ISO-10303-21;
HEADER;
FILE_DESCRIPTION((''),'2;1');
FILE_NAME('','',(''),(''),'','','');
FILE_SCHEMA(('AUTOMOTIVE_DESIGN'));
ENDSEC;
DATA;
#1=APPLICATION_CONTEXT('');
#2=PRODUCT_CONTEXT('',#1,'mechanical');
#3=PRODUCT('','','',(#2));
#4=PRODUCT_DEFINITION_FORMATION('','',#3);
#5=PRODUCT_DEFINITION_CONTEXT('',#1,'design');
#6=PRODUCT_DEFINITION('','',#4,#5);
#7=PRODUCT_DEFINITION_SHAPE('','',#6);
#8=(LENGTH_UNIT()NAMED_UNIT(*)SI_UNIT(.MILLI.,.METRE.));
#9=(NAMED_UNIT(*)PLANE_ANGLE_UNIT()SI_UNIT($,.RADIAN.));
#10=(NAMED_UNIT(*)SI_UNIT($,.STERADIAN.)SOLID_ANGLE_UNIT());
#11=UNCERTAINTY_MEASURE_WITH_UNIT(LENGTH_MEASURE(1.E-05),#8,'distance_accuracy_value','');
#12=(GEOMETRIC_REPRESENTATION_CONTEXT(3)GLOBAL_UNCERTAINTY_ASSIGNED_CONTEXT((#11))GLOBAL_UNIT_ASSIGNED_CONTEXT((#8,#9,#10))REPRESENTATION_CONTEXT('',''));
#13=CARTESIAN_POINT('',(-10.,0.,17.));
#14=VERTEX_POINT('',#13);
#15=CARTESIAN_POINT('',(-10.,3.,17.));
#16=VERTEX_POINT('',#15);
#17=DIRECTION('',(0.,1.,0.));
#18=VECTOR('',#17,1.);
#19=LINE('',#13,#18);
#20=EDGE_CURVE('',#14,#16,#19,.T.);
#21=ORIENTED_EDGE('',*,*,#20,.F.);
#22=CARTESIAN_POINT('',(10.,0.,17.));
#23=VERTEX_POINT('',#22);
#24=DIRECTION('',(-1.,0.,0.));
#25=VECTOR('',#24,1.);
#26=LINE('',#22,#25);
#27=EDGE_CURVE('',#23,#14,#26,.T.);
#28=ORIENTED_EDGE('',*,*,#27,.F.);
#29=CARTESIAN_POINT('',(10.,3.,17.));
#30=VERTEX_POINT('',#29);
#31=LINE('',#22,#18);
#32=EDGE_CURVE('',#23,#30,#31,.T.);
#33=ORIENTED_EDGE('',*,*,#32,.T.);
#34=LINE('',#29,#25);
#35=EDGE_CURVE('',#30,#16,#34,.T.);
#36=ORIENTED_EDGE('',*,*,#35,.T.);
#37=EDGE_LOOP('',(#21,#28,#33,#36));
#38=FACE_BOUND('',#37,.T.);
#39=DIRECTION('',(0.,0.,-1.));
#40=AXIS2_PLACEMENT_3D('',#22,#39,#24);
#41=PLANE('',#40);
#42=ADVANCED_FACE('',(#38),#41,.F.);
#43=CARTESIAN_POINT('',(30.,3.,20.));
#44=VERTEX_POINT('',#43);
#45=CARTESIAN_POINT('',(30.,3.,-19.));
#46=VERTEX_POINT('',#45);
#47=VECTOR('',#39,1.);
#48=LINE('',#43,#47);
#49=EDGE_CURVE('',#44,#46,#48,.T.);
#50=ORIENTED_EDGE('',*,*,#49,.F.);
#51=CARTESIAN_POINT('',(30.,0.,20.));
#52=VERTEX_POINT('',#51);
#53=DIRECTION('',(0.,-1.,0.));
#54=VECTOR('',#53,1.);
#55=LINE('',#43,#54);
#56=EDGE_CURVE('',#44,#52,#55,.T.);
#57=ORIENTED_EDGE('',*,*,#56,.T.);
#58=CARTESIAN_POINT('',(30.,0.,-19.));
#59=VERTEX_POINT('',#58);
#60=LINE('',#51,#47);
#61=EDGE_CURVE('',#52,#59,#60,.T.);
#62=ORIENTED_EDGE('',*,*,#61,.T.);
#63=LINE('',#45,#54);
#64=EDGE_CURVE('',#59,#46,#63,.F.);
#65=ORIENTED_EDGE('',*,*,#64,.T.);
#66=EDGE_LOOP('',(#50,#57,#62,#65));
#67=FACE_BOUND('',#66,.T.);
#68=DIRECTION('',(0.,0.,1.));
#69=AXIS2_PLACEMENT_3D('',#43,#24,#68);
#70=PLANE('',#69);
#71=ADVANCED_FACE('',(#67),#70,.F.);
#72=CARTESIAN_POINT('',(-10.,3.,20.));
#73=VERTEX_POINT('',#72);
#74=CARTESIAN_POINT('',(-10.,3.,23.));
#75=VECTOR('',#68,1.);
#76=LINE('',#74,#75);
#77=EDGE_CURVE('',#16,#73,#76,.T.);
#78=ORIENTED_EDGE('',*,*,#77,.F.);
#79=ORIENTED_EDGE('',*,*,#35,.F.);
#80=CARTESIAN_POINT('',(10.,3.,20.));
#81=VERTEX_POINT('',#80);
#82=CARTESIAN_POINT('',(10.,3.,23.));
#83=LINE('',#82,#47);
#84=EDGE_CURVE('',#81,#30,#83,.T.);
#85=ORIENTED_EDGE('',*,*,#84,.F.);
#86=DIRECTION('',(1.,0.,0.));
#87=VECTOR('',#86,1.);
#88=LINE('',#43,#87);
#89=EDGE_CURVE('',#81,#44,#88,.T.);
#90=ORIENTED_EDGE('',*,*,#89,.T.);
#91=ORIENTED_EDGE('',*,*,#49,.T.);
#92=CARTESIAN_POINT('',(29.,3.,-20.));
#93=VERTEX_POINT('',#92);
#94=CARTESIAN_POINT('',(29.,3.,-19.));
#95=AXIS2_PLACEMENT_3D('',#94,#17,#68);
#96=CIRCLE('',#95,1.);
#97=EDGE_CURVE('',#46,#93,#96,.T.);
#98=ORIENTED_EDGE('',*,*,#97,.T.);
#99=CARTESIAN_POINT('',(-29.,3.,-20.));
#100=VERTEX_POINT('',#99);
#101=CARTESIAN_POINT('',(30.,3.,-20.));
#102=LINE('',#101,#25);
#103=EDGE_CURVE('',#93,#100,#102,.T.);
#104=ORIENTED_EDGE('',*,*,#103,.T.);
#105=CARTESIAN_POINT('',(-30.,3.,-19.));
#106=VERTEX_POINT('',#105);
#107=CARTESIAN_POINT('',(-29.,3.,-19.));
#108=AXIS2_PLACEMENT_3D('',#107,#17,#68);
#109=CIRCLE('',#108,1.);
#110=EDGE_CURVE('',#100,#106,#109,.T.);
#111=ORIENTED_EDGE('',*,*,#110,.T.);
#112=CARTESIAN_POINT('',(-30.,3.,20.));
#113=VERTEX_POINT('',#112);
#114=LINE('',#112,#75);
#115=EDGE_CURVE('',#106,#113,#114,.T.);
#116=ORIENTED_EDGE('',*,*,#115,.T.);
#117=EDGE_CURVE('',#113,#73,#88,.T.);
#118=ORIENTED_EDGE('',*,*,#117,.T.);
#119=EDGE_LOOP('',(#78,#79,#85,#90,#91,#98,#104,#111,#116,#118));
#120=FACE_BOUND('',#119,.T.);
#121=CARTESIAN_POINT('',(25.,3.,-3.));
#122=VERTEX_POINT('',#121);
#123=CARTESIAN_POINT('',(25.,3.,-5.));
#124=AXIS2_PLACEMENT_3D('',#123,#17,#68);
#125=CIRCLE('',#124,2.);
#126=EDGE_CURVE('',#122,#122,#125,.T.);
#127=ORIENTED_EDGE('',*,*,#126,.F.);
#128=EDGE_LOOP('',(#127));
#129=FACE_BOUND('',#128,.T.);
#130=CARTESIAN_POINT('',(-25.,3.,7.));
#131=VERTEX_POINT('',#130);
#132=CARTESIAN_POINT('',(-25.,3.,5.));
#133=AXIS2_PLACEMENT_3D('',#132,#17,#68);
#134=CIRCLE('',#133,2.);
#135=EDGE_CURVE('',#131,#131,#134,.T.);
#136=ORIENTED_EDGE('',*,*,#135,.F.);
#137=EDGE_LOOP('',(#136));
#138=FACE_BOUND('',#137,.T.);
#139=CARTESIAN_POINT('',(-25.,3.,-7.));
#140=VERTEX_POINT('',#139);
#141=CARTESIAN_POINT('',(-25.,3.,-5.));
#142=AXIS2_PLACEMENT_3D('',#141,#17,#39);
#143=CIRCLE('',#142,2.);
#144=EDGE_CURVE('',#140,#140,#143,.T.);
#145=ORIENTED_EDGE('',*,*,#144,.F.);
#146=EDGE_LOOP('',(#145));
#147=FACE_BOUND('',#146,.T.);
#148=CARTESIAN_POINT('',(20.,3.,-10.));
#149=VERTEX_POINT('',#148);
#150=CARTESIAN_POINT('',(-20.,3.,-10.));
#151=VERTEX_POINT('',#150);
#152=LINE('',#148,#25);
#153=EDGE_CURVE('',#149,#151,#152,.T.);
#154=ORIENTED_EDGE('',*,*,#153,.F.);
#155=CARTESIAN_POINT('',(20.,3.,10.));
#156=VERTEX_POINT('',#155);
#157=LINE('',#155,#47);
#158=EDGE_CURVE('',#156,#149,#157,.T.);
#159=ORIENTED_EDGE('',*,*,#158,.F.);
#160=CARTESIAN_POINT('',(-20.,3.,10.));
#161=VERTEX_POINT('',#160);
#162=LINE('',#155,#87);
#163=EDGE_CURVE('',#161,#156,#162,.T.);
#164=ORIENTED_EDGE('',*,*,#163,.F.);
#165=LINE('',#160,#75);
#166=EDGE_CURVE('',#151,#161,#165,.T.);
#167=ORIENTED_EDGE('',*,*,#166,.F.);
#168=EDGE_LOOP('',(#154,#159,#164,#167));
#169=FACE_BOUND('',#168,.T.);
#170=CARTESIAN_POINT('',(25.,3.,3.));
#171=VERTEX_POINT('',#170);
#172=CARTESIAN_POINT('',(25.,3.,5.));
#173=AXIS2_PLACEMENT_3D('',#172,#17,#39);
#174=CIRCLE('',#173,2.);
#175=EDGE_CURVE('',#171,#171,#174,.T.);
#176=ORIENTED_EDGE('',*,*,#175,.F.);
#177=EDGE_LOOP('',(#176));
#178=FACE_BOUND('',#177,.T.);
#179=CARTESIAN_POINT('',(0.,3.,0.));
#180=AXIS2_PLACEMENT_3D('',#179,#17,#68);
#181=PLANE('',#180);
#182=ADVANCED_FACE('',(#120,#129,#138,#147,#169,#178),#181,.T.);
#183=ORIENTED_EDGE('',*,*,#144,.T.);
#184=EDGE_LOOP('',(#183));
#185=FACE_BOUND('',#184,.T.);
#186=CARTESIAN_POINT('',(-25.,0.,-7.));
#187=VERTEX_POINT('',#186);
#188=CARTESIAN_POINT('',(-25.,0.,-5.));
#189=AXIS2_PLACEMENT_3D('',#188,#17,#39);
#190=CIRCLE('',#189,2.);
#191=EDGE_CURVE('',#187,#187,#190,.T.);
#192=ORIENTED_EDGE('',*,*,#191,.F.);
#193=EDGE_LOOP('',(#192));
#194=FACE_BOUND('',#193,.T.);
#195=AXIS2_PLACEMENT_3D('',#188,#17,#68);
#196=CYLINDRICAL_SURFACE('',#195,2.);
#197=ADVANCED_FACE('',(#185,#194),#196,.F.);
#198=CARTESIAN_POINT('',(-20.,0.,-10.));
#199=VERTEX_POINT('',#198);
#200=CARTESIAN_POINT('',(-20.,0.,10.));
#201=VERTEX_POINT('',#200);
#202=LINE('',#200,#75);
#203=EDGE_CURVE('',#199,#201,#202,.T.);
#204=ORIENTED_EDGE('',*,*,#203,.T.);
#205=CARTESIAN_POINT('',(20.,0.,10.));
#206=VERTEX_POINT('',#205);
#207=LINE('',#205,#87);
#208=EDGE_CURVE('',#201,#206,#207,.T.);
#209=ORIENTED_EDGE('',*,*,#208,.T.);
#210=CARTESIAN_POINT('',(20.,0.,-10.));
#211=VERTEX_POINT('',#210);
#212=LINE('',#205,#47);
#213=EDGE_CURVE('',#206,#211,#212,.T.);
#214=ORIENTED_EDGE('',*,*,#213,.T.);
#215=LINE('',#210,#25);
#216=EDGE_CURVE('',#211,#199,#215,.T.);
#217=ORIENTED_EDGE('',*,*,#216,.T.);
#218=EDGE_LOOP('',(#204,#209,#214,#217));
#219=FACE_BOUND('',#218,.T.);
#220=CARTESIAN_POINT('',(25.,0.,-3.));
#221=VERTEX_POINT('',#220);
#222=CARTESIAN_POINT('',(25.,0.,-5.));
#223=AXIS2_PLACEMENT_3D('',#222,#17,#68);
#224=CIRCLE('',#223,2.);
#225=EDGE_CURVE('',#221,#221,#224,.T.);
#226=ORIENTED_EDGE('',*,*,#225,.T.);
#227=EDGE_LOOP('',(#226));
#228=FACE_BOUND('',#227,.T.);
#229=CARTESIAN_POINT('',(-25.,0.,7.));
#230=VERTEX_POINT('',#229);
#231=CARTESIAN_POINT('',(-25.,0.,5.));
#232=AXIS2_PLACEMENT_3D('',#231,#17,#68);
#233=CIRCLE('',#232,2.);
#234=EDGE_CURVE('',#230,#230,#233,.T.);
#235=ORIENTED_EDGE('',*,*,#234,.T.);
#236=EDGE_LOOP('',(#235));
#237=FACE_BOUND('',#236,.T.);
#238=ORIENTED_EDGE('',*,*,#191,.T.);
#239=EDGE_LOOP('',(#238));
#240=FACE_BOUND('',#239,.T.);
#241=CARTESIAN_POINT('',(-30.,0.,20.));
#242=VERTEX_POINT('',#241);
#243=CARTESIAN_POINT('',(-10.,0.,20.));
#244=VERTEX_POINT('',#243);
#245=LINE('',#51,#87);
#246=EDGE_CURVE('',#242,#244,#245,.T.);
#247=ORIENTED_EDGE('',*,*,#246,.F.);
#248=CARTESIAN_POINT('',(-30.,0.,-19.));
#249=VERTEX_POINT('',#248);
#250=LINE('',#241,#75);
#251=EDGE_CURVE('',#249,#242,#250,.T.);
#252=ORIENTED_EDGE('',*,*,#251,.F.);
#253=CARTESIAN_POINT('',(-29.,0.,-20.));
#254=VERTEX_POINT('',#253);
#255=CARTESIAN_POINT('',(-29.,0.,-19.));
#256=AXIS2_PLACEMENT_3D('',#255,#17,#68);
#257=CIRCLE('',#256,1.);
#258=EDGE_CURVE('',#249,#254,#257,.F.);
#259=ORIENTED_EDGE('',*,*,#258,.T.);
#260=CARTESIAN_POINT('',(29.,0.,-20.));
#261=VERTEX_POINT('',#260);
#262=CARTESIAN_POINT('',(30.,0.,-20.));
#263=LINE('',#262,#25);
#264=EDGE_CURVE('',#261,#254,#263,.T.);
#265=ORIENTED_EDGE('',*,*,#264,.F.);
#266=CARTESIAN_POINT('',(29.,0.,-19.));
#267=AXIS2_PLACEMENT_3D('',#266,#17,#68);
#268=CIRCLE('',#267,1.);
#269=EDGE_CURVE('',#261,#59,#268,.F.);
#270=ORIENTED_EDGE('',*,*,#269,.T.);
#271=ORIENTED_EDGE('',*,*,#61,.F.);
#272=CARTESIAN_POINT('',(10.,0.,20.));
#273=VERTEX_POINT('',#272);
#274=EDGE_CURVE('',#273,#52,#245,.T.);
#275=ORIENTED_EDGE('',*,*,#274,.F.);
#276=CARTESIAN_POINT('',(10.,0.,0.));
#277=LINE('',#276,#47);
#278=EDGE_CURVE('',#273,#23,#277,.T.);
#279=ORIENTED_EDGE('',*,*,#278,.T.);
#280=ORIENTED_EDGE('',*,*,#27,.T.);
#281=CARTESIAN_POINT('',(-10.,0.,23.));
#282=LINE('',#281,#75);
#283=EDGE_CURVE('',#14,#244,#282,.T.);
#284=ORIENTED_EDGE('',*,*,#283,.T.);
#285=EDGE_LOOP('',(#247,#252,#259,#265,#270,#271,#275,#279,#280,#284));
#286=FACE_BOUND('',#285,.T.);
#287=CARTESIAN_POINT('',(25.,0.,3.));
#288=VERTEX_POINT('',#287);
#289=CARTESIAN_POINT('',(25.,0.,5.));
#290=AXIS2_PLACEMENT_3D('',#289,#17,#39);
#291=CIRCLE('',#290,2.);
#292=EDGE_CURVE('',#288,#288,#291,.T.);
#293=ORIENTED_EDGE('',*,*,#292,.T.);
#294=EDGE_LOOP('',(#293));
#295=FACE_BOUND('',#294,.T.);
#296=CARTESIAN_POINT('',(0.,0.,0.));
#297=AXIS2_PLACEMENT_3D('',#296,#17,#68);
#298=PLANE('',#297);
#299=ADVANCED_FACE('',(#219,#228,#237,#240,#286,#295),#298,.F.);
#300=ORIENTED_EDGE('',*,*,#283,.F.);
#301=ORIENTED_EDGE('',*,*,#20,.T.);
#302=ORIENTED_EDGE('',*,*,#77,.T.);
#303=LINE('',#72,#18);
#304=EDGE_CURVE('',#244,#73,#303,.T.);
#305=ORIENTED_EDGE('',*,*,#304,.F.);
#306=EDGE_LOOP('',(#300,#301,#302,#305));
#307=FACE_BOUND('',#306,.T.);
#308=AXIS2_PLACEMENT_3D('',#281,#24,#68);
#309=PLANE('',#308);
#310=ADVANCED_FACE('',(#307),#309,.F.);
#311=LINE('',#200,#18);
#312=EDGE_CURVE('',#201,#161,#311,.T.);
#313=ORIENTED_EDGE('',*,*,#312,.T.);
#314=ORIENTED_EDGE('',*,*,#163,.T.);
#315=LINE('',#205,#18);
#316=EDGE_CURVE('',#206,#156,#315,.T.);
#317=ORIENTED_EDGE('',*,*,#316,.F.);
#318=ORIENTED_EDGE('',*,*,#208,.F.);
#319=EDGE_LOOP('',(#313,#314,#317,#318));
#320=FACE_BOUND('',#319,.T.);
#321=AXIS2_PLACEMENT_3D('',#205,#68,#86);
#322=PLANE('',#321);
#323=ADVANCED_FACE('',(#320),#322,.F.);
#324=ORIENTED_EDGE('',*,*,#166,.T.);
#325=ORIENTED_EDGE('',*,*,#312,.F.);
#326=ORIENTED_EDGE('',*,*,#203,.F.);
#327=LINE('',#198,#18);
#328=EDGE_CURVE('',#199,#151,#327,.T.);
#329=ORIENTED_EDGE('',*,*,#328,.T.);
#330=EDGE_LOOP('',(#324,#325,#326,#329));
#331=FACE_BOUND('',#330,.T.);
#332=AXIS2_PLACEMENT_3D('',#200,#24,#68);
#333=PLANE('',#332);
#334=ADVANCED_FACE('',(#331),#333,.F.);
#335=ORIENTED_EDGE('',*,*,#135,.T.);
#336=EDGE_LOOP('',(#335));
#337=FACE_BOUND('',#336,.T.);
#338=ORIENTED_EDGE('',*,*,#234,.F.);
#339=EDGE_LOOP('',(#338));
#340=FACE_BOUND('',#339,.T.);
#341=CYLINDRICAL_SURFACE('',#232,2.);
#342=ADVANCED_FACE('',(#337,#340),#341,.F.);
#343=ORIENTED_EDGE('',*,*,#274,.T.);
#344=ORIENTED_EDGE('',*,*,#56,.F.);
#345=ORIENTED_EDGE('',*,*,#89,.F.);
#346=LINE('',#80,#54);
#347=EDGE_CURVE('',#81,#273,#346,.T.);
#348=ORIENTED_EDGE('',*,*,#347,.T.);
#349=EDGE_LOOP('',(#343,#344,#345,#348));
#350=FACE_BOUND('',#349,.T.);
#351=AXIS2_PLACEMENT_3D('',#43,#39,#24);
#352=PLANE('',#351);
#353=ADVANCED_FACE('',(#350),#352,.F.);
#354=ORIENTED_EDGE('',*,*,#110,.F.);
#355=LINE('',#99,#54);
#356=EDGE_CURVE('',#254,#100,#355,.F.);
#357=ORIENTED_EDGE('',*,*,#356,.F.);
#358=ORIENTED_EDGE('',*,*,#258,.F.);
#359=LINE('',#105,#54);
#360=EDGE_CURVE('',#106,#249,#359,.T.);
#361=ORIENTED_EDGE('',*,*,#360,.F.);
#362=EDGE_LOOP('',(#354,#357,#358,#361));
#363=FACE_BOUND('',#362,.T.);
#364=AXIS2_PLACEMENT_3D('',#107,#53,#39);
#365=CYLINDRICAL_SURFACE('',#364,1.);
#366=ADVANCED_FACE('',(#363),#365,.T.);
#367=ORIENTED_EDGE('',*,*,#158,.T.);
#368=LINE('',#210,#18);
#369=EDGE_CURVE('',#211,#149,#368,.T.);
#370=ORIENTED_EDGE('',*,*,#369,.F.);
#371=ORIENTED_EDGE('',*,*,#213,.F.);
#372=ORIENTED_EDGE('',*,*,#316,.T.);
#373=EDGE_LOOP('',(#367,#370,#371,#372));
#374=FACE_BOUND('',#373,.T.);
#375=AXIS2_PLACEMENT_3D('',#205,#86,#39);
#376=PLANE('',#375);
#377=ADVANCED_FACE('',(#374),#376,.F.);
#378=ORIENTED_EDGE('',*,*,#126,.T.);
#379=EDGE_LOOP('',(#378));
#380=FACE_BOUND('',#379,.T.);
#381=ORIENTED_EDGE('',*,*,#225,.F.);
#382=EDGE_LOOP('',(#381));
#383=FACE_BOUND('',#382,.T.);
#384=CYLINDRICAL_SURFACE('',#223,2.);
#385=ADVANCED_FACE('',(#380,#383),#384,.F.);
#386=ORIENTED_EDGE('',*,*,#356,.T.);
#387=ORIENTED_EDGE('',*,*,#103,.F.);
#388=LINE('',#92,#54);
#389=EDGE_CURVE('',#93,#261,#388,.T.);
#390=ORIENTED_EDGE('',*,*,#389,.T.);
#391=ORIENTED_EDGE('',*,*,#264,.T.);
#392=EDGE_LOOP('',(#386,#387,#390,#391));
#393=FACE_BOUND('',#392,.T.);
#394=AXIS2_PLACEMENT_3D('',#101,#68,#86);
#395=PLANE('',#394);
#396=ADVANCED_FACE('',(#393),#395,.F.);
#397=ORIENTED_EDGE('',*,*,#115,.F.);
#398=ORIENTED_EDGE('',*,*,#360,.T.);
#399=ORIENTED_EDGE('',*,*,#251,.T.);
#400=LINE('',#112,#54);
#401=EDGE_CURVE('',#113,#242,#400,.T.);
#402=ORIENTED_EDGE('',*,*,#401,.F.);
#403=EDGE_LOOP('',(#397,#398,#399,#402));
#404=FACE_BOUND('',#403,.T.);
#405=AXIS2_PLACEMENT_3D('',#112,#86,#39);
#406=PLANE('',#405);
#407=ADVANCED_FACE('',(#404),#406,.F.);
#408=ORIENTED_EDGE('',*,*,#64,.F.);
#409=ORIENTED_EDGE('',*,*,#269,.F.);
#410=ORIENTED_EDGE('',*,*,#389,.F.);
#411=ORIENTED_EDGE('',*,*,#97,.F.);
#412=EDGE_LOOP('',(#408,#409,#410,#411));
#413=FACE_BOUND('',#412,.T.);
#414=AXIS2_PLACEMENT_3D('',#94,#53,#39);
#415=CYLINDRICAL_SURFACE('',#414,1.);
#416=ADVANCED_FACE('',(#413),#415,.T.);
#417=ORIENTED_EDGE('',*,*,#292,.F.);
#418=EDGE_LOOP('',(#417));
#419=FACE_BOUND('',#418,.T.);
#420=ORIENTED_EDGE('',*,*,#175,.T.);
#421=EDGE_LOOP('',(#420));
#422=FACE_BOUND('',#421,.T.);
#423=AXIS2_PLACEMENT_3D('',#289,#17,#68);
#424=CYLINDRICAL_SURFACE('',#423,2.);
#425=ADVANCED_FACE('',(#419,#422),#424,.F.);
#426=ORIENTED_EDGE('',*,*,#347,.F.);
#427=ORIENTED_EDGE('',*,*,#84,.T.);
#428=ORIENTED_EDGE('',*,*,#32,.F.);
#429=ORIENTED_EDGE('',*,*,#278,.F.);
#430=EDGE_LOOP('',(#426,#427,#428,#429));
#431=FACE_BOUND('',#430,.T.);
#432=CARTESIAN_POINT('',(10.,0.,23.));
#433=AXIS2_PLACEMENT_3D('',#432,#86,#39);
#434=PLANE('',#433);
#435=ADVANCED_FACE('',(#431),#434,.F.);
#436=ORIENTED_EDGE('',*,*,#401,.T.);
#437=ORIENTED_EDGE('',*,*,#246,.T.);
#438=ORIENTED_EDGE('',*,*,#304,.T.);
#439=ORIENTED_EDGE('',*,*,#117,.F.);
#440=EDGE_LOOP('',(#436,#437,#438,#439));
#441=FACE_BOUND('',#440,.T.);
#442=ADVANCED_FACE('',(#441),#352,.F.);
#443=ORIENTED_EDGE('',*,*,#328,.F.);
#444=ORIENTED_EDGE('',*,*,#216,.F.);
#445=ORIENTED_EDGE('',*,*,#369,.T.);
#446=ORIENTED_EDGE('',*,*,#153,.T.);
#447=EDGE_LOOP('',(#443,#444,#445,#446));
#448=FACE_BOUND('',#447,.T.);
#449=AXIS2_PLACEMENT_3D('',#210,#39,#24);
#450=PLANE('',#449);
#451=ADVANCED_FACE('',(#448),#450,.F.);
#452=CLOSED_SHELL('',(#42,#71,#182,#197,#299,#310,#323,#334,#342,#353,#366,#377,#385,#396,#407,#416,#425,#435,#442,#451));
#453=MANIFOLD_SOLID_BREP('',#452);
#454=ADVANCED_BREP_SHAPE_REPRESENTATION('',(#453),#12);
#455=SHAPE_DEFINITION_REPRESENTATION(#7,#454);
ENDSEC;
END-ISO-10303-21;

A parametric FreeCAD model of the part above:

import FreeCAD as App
import Part
import Sketcher

V = App.Vector


def edges_at(feature, points):
    """Names of the edges that pass closest to the given points."""
    edges = feature.Shape.Edges
    near = lambda p: min(range(len(edges)), key=lambda i: edges[i].distToShape(Part.Vertex(*p))[0])
    return sorted({f"Edge{near(p) + 1}" for p in points})


def add_polygon(sketch, points):
    """Adds a closed chain of lines whose ends are joined by coincident constraints."""
    first, n = sketch.GeometryCount, len(points)
    for a, b in zip(points, points[1:] + points[:1]):
        sketch.addGeometry(Part.LineSegment(App.Vector(*a, 0), App.Vector(*b, 0)), False)
    for i in range(n):
        sketch.addConstraint(Sketcher.Constraint("Coincident", first + i, 2, first + (i + 1) % n, 1))

doc = App.newDocument("Part")
params = doc.addObject("Spreadsheet::Sheet", "Params")
for row, (alias, value) in enumerate([
    ("sketch1_width", "60 mm"),
    ("sketch1_height", "40 mm"),
    ("pad1_length", "3 mm"),
    ("sketch2_width", "40 mm"),
    ("sketch2_height", "20 mm"),
    ("pocket1_length", "3 mm"),
    ("sketch3_diameter", "4 mm"),
    ("pocket2_length", "3 mm"),
    ("fillet_radius", "1 mm"),
    ("sketch4_width", "20 mm"),
    ("sketch4_height", "6 mm"),
    ("pocket3_length", "3 mm"),
], start=1):
    params.set(f"A{row}", alias)
    params.set(f"B{row}", "=" + value)
    params.setAlias(f"B{row}", alias)

body = doc.addObject("PartDesign::Body", "Body")

# Sketch on XZ plane
sketch1 = body.newObject("Sketcher::SketchObject", "Sketch")
sketch1.AttachmentSupport = (doc.getObject("XZ_Plane"), [""])
sketch1.MapMode = "FlatFace"
add_polygon(sketch1, [(-30, -20), (-30, 20), (30, 20), (30, -20)])  # lines 0-3
sketch1.addConstraint([
    Sketcher.Constraint("Vertical", 0),
    Sketcher.Constraint("Horizontal", 1),
    Sketcher.Constraint("Vertical", 2),
    Sketcher.Constraint("Horizontal", 3),
    Sketcher.Constraint("Symmetric", 0, 2, 2, 2, -1, 1),
    Sketcher.Constraint("DistanceX", 1, 1, 1, 2, 60.0),
    Sketcher.Constraint("DistanceY", 0, 1, 0, 2, 40.0),
])
sketch1.setExpression("Constraints[9]", "Params.sketch1_width")
sketch1.setExpression("Constraints[10]", "Params.sketch1_height")
pad1 = body.newObject("PartDesign::Pad", "Pad")
pad1.Profile = sketch1
pad1.setExpression("Length", "Params.pad1_length")
pad1.Reversed = True

# Sketch on XZ plane
sketch2 = body.newObject("Sketcher::SketchObject", "Sketch001")
sketch2.AttachmentSupport = (doc.getObject("XZ_Plane"), [""])
sketch2.MapMode = "FlatFace"
sketch2.AttachmentOffset = App.Placement(V(0, 0, -3), App.Rotation())
add_polygon(sketch2, [(-20, -10), (-20, 10), (20, 10), (20, -10)])  # lines 0-3
sketch2.addConstraint([
    Sketcher.Constraint("Vertical", 0),
    Sketcher.Constraint("Horizontal", 1),
    Sketcher.Constraint("Vertical", 2),
    Sketcher.Constraint("Horizontal", 3),
    Sketcher.Constraint("Symmetric", 0, 2, 2, 2, -1, 1),
    Sketcher.Constraint("DistanceX", 1, 1, 1, 2, 40.0),
    Sketcher.Constraint("DistanceY", 0, 1, 0, 2, 20.0),
])
sketch2.setExpression("Constraints[9]", "Params.sketch2_width")
sketch2.setExpression("Constraints[10]", "Params.sketch2_height")
pocket1 = body.newObject("PartDesign::Pocket", "Pocket")
pocket1.Profile = sketch2
pocket1.setExpression("Length", "Params.pocket1_length")
pocket1.Reversed = True

# Sketch on XZ plane
sketch3 = body.newObject("Sketcher::SketchObject", "Sketch002")
sketch3.AttachmentSupport = (doc.getObject("XZ_Plane"), [""])
sketch3.MapMode = "FlatFace"
sketch3.AttachmentOffset = App.Placement(V(0, 0, -3), App.Rotation())
sketch3.addGeometry([
    Part.Circle(V(25, -5, 0), V(0, 0, 1), 2),
    Part.Circle(V(25, 5, 0), V(0, 0, 1), 2),
    Part.Circle(V(-25, 5, 0), V(0, 0, 1), 2),
    Part.Circle(V(-25, -5, 0), V(0, 0, 1), 2),
], False)
sketch3.addConstraint([
    Sketcher.Constraint("Equal", 0, 1),
    Sketcher.Constraint("Equal", 1, 2),
    Sketcher.Constraint("Equal", 2, 3),
    Sketcher.Constraint("Symmetric", 0, 3, 2, 3, -1, 1),
    Sketcher.Constraint("Symmetric", 1, 3, 3, 3, -1, 1),
    Sketcher.Constraint("Symmetric", 1, 3, 2, 3, -2),
    Sketcher.Constraint("Diameter", 0, 4.0),
    Sketcher.Constraint("DistanceX", -1, 1, 0, 3, 25.0),
    Sketcher.Constraint("DistanceY", 0, 3, -1, 1, 5.0),
])
sketch3.setExpression("Constraints[6]", "Params.sketch3_diameter")
pocket2 = body.newObject("PartDesign::Pocket", "Pocket001")
pocket2.Profile = sketch3
pocket2.setExpression("Length", "Params.pocket2_length")
pocket2.Reversed = True
doc.recompute()

fillet = body.newObject("PartDesign::Fillet", "Fillet")
fillet.Base = (pocket2, edges_at(pocket2, [(-30, 1.5, -20), (30, 1.5, -20)]))
fillet.setExpression("Radius", "Params.fillet_radius")

# Sketch on XZ plane
sketch4 = body.newObject("Sketcher::SketchObject", "Sketch003")
sketch4.AttachmentSupport = (doc.getObject("XZ_Plane"), [""])
sketch4.MapMode = "FlatFace"
sketch4.AttachmentOffset = App.Placement(V(0, 0, -3), App.Rotation())
add_polygon(sketch4, [(-10, 17), (-10, 23), (10, 23), (10, 17)])  # lines 0-3
sketch4.addConstraint([
    Sketcher.Constraint("Vertical", 0),
    Sketcher.Constraint("Horizontal", 1),
    Sketcher.Constraint("Vertical", 2),
    Sketcher.Constraint("Horizontal", 3),
    Sketcher.Constraint("DistanceX", 1, 1, 1, 2, 20.0),
    Sketcher.Constraint("DistanceY", 0, 1, 0, 2, 6.0),
    Sketcher.Constraint("DistanceX", 0, 2, -1, 1, 10.0),
    Sketcher.Constraint("DistanceY", -1, 1, 0, 2, 23.0),
])
sketch4.setExpression("Constraints[8]", "Params.sketch4_width")
sketch4.setExpression("Constraints[9]", "Params.sketch4_height")
pocket3 = body.newObject("PartDesign::Pocket", "Pocket002")
pocket3.Profile = sketch4
pocket3.setExpression("Length", "Params.pocket3_length")
pocket3.Reversed = True

doc.recompute()
